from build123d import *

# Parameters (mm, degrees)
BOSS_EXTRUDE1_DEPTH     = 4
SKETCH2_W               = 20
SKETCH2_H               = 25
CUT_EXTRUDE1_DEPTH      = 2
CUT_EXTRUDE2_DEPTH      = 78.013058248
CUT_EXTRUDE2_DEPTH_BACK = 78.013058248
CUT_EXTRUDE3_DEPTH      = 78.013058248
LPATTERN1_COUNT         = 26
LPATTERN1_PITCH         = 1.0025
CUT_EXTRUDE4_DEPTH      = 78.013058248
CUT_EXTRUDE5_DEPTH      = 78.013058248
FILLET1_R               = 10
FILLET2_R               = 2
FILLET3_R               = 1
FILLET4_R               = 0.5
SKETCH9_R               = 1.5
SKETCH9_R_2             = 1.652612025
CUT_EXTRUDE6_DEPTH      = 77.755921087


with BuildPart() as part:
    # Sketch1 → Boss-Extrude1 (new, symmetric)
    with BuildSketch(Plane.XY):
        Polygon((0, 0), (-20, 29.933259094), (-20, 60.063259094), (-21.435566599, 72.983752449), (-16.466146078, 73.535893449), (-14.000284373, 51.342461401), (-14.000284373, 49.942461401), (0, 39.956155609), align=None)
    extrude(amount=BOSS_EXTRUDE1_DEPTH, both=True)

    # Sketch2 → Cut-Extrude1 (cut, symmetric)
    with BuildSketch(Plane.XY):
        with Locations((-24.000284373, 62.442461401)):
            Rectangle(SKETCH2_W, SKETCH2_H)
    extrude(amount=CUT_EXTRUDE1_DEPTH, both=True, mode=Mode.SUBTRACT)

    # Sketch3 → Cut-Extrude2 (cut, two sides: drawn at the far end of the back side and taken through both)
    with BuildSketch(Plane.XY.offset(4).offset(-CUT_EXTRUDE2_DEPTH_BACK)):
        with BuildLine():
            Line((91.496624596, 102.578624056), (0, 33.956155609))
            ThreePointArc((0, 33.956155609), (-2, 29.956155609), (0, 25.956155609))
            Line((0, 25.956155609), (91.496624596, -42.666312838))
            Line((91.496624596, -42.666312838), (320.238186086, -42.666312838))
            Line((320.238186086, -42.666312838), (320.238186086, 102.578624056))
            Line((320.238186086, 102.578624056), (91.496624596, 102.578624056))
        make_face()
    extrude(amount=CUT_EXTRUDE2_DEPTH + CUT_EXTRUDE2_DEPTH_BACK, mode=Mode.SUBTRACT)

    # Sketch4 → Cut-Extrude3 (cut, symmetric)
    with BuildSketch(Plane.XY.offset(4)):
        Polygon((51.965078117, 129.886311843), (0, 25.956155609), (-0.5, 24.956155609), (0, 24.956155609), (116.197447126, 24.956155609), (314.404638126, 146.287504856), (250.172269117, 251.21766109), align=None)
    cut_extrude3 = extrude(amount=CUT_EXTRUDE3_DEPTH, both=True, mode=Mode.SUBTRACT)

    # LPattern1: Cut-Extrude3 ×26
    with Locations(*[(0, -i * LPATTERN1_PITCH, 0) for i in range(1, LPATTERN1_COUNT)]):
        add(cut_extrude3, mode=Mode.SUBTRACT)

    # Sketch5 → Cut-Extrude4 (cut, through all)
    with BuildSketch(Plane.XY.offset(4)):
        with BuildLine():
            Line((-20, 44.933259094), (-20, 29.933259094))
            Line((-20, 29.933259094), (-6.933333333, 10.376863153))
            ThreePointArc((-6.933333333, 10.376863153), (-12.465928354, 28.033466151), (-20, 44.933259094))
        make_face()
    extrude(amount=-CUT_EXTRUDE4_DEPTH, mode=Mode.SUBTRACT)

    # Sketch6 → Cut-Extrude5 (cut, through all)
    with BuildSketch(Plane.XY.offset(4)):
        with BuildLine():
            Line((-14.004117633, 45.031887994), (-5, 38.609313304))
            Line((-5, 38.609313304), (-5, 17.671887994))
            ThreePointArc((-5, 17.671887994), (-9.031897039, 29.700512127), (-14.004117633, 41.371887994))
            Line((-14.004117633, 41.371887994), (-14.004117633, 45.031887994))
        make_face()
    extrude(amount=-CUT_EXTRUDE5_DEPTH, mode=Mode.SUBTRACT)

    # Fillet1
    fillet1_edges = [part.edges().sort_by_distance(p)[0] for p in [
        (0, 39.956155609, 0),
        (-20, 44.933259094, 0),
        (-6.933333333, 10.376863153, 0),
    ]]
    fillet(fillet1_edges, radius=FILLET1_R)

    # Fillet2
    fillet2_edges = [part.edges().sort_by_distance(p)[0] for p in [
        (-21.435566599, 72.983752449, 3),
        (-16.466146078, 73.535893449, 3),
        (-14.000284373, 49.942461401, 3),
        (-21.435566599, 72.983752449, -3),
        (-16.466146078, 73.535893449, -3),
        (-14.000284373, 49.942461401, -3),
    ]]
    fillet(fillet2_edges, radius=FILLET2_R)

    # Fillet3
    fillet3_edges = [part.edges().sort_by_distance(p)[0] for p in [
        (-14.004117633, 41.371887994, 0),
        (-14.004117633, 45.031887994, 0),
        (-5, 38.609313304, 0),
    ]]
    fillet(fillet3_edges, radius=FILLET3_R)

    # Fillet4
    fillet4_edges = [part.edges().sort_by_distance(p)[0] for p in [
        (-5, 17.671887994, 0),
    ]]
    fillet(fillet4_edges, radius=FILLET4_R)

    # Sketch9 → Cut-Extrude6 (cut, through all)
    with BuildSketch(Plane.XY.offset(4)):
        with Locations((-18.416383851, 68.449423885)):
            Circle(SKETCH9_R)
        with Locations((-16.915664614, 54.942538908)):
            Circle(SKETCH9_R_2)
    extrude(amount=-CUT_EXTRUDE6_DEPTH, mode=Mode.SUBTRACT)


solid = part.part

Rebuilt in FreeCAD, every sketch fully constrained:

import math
import FreeCAD as App
import Part
import Sketcher
Q = App.Units.Quantity


def edges_at(feature, points):
    """Names of the edges that pass closest to the given points."""
    edges = feature.Shape.Edges
    near = lambda p: min(range(len(edges)), key=lambda i: edges[i].distToShape(Part.Vertex(*p))[0])
    return sorted({f"Edge{near(p) + 1}" for p in points})


def add_polygon(sketch, points):
    """Adds a closed chain of lines whose ends are joined by coincident constraints."""
    first, n = sketch.GeometryCount, len(points)
    for a, b in zip(points, points[1:] + points[:1]):
        sketch.addGeometry(Part.LineSegment(App.Vector(*a, 0), App.Vector(*b, 0)), False)
    for i in range(n):
        sketch.addConstraint(Sketcher.Constraint("Coincident", first + i, 2, first + (i + 1) % n, 1))

doc = App.newDocument("Part")
body = doc.addObject("PartDesign::Body", "Body")

sketch1 = body.newObject("Sketcher::SketchObject", "Sketch")
sketch1.AttachmentSupport = (doc.getObject("XY_Plane"), [""])
sketch1.MapMode = "FlatFace"
add_polygon(sketch1, [(-20, 29.9), (0, 0), (0, 40), (-14, 49.9), (-14, 51.3), (-16.5, 73.5), (-21.4, 73), (-20, 60.1)])
sketch1.addConstraint(Sketcher.Constraint("Vertical", 1))
sketch1.addConstraint(Sketcher.Constraint("Vertical", 3))
sketch1.addConstraint(Sketcher.Constraint("Vertical", 7))
sketch1.addConstraint(Sketcher.Constraint("Coincident", 0, 2, -1, 1))
sketch1.addConstraint(Sketcher.Constraint("Perpendicular", 4, 5))
sketch1.addConstraint(Sketcher.Constraint("Perpendicular", 5, 6))
sketch1.addConstraint(Sketcher.Constraint("Distance", 0, Q("36 mm")))
sketch1.addConstraint(Sketcher.Constraint("Distance", 5, Q("5 mm")))
sketch1.addConstraint(Sketcher.Constraint("Distance", 6, Q("13 mm")))
sketch1.addConstraint(Sketcher.Constraint("DistanceY", 3, 1, 3, 2, Q("1.4 mm")))
sketch1.addConstraint(Sketcher.Constraint("DistanceX", 6, 2, -1, 1, Q("20 mm")))
sketch1.addConstraint(Sketcher.Constraint("Angle", 2, Q("144.5 deg")))
sketch1.addConstraint(Sketcher.Constraint("DistanceY", 7, 2, 7, 1, Q("30.13 mm")))
sketch1.addConstraint(Sketcher.Constraint("Angle", 4, Q("96.34 deg")))
sketch1.addConstraint(Sketcher.Constraint("Distance", 4, Q("22.33 mm")))
pad1 = body.newObject("PartDesign::Pad", "Pad")
pad1.Profile = sketch1
pad1.Length = 8
pad1.Midplane = True

sketch2 = body.newObject("Sketcher::SketchObject", "Sketch001")
sketch2.AttachmentSupport = (doc.getObject("XY_Plane"), [""])
sketch2.MapMode = "FlatFace"
add_polygon(sketch2, [(-34, 75), (-34, 50), (-14, 50), (-14, 75)])
sketch2.addConstraint(Sketcher.Constraint("Vertical", 0))
sketch2.addConstraint(Sketcher.Constraint("Horizontal", 1))
sketch2.addConstraint(Sketcher.Constraint("Vertical", 2))
sketch2.addConstraint(Sketcher.Constraint("Horizontal", 3))
sketch2.addConstraint(Sketcher.Constraint("DistanceX", 1, 1, 1, 2, Q("20 mm")))
sketch2.addConstraint(Sketcher.Constraint("DistanceY", 0, 2, 0, 1, Q("25 mm")))
sketch2.addConstraint(Sketcher.Constraint("DistanceY", -1, 1, 0, 2, Q("49.942461 mm")))
sketch2.addConstraint(Sketcher.Constraint("DistanceX", 0, 2, -1, 1, Q("34.000284 mm")))
pocket1 = body.newObject("PartDesign::Pocket", "Pocket")
pocket1.Profile = sketch2
pocket1.Length = 4
pocket1.Midplane = True

sketch3 = body.newObject("Sketcher::SketchObject", "Sketch002")
sketch3.AttachmentSupport = (doc.getObject("XY_Plane"), [""])
sketch3.MapMode = "FlatFace"
sketch3.AttachmentOffset = App.Placement(App.Vector(0, 0, 4), App.Rotation())
sketch3.addGeometry(Part.LineSegment(App.Vector(91, 103, 0), App.Vector(0, 34, 0)), False)
sketch3.addGeometry(Part.ArcOfCircle(Part.Circle(App.Vector(3, 30, 0), App.Vector(0, 0, 1), 5), math.radians(127), math.radians(233)), False)
sketch3.addGeometry(Part.LineSegment(App.Vector(0, 26, 0), App.Vector(91, -43, 0)), False)
sketch3.addGeometry(Part.LineSegment(App.Vector(91, -43, 0), App.Vector(320, -43, 0)), False)
sketch3.addGeometry(Part.LineSegment(App.Vector(320, -43, 0), App.Vector(320, 103, 0)), False)
sketch3.addGeometry(Part.LineSegment(App.Vector(320, 103, 0), App.Vector(91, 103, 0)), False)
sketch3.addConstraint(Sketcher.Constraint("Tangent", 0, 2, 1, 1))
sketch3.addConstraint(Sketcher.Constraint("Tangent", 1, 2, 2, 1))
sketch3.addConstraint(Sketcher.Constraint("Coincident", 2, 2, 3, 1))
sketch3.addConstraint(Sketcher.Constraint("Coincident", 3, 2, 4, 1))
sketch3.addConstraint(Sketcher.Constraint("Coincident", 4, 2, 5, 1))
sketch3.addConstraint(Sketcher.Constraint("Coincident", 5, 2, 0, 1))
sketch3.addConstraint(Sketcher.Constraint("Horizontal", 3))
sketch3.addConstraint(Sketcher.Constraint("Vertical", 4))
sketch3.addConstraint(Sketcher.Constraint("Horizontal", 5))
sketch3.addConstraint(Sketcher.Constraint("PointOnObject", 0, 2, -2))
sketch3.addConstraint(Sketcher.Constraint("PointOnObject", 1, 2, -2))
sketch3.addConstraint(Sketcher.Constraint("Vertical", 2, 2, 5, 2))
sketch3.addConstraint(Sketcher.Constraint("Radius", 1, Q("5 mm")))
sketch3.addConstraint(Sketcher.Constraint("DistanceX", -1, 1, 1, 3, Q("3 mm")))
sketch3.addConstraint(Sketcher.Constraint("DistanceX", 3, 1, 3, 2, Q("228.741561 mm")))
sketch3.addConstraint(Sketcher.Constraint("Distance", 0, Q("114.370781 mm")))
sketch3.addConstraint(Sketcher.Constraint("DistanceY", -1, 1, 1, 3, Q("29.956156 mm")))
pocket2 = body.newObject("PartDesign::Pocket", "Pocket001")
pocket2.Profile = sketch3
pocket2.Type = "ThroughAll"
pocket2.Midplane = True

sketch4 = body.newObject("Sketcher::SketchObject", "Sketch003")
sketch4.AttachmentSupport = (doc.getObject("XY_Plane"), [""])
sketch4.MapMode = "FlatFace"
sketch4.AttachmentOffset = App.Placement(App.Vector(0, 0, 4), App.Rotation())
add_polygon(sketch4, [(52, 130), (0, 25), (116, 25), (314, 146), (250, 251)])
sketch4.addConstraint(Sketcher.Constraint("Horizontal", 1))
sketch4.addConstraint(Sketcher.Constraint("Perpendicular", 2, 3))
sketch4.addConstraint(Sketcher.Constraint("Perpendicular", 3, 4))
sketch4.addConstraint(Sketcher.Constraint("Equal", 2, 4))
sketch4.addConstraint(Sketcher.Constraint("DistanceX", 0, 2, -1, 1, Q("0.5 mm")))
sketch4.addConstraint(Sketcher.Constraint("Distance", 3, Q("123.029 mm")))
sketch4.addConstraint(Sketcher.Constraint("Distance", 0, Q("117.315481 mm")))
sketch4.addConstraint(Sketcher.Constraint("DistanceX", 1, 1, 1, 2, Q("116.697447 mm")))
sketch4.addConstraint(Sketcher.Constraint("DistanceX", -1, 1, 2, 2, Q("314.404638 mm")))
sketch4.addConstraint(Sketcher.Constraint("DistanceY", -1, 1, 3, 2, Q("251.217661 mm")))
pocket3 = body.newObject("PartDesign::Pocket", "Pocket002")
pocket3.Profile = sketch4
pocket3.Length = 156.026116
pocket3.Midplane = True
doc.recompute()

linearpattern = body.newObject("PartDesign::LinearPattern", "LinearPattern")
linearpattern.Originals = [pocket3]
linearpattern.Direction = (doc.getObject("Y_Axis"), [""])
linearpattern.Mode = "offset"
linearpattern.Offset = 1.0025
linearpattern.Occurrences = 26
linearpattern.Reversed = True
body.Tip = linearpattern

sketch5 = body.newObject("Sketcher::SketchObject", "Sketch004")
sketch5.AttachmentSupport = (doc.getObject("XY_Plane"), [""])
sketch5.MapMode = "FlatFace"
sketch5.AttachmentOffset = App.Placement(App.Vector(0, 0, 4), App.Rotation())
sketch5.addGeometry(Part.LineSegment(App.Vector(-20, 45, 0), App.Vector(-20, 30, 0)), False)
sketch5.addGeometry(Part.LineSegment(App.Vector(-20, 30, 0), App.Vector(-7, 10, 0)), False)
sketch5.addGeometry(Part.ArcOfCircle(Part.Circle(App.Vector(-162, -29, 0), App.Vector(0, 0, 1), 160), math.radians(14.08), math.radians(27.34)), False)
sketch5.addConstraint(Sketcher.Constraint("Coincident", 0, 2, 1, 1))
sketch5.addConstraint(Sketcher.Constraint("Coincident", 1, 2, 2, 1))
sketch5.addConstraint(Sketcher.Constraint("Coincident", 2, 2, 0, 1))
sketch5.addConstraint(Sketcher.Constraint("Vertical", 0))
sketch5.addConstraint(Sketcher.Constraint("Radius", 2, Q("160 mm")))
sketch5.addConstraint(Sketcher.Constraint("DistanceY", 0, 2, 0, 1, Q("15 mm")))
sketch5.addConstraint(Sketcher.Constraint("DistanceX", 0, 2, -1, 1, Q("20 mm")))
sketch5.addConstraint(Sketcher.Constraint("Distance", 1, Q("23.52 mm")))
sketch5.addConstraint(Sketcher.Constraint("DistanceX", 2, 3, 1, 2, Q("155.190902 mm")))
sketch5.addConstraint(Sketcher.Constraint("DistanceY", 2, 3, -1, 1, Q("28.556209 mm")))
pocket4 = body.newObject("PartDesign::Pocket", "Pocket003")
pocket4.Profile = sketch5
pocket4.Type = "ThroughAll"

sketch6 = body.newObject("Sketcher::SketchObject", "Sketch005")
sketch6.AttachmentSupport = (doc.getObject("XY_Plane"), [""])
sketch6.MapMode = "FlatFace"
sketch6.AttachmentOffset = App.Placement(App.Vector(0, 0, 4), App.Rotation())
sketch6.addGeometry(Part.LineSegment(App.Vector(-5, 38.6, 0), App.Vector(-14, 45, 0)), False)
sketch6.addGeometry(Part.LineSegment(App.Vector(-14, 45, 0), App.Vector(-14, 41.4, 0)), False)
sketch6.addGeometry(Part.ArcOfCircle(Part.Circle(App.Vector(-158.6, -27.1, 0), App.Vector(0, 0, 1), 160), math.radians(16.26), math.radians(25.35)), False)
sketch6.addGeometry(Part.LineSegment(App.Vector(-5, 17.7, 0), App.Vector(-5, 38.6, 0)), False)
sketch6.addConstraint(Sketcher.Constraint("Coincident", 0, 2, 1, 1))
sketch6.addConstraint(Sketcher.Constraint("Coincident", 1, 2, 2, 2))
sketch6.addConstraint(Sketcher.Constraint("Coincident", 2, 1, 3, 1))
sketch6.addConstraint(Sketcher.Constraint("Coincident", 3, 2, 0, 1))
sketch6.addConstraint(Sketcher.Constraint("Vertical", 1))
sketch6.addConstraint(Sketcher.Constraint("Vertical", 3))
sketch6.addConstraint(Sketcher.Constraint("Radius", 2, Q("160 mm")))
sketch6.addConstraint(Sketcher.Constraint("DistanceX", 2, 1, -1, 1, Q("5 mm")))
sketch6.addConstraint(Sketcher.Constraint("Angle", 0, Q("144.5 deg")))
sketch6.addConstraint(Sketcher.Constraint("DistanceY", 1, 2, 1, 1, Q("3.66 mm")))
sketch6.addConstraint(Sketcher.Constraint("DistanceY", 2, 1, 1, 2, Q("23.7 mm")))
sketch6.addConstraint(Sketcher.Constraint("Distance", 0, Q("11.06 mm")))
sketch6.addConstraint(Sketcher.Constraint("DistanceY", 2, 3, -1, 1, Q("27.123949 mm")))
pocket5 = body.newObject("PartDesign::Pocket", "Pocket004")
pocket5.Profile = sketch6
pocket5.Type = "ThroughAll"
doc.recompute()

fillet = body.newObject("PartDesign::Fillet", "Fillet")
fillet.Base = (pocket5, edges_at(pocket5, [(0, 39.956, 0), (-20, 44.933, 0), (-6.933, 10.377, 0)]))
fillet.Radius = 10
doc.recompute()

fillet2 = body.newObject("PartDesign::Fillet", "Fillet001")
fillet2.Base = (fillet, edges_at(fillet, [
    (-21.436, 72.984, 3),
    (-16.466, 73.536, 3),
    (-14, 49.942, 3),
    (-21.436, 72.984, -3),
    (-16.466, 73.536, -3),
    (-14, 49.942, -3),
]))
fillet2.Radius = 2
doc.recompute()

fillet3 = body.newObject("PartDesign::Fillet", "Fillet002")
fillet3.Base = (fillet2, edges_at(fillet2, [(-14.004, 41.372, 0), (-14.004, 45.032, 0), (-5, 38.609, 0)]))
fillet3.Radius = 1
doc.recompute()

fillet4 = body.newObject("PartDesign::Fillet", "Fillet003")
fillet4.Base = (fillet3, edges_at(fillet3, [(-5, 17.672, 0)]))
fillet4.Radius = 0.5

sketch7 = body.newObject("Sketcher::SketchObject", "Sketch006")
sketch7.AttachmentSupport = (doc.getObject("XY_Plane"), [""])
sketch7.MapMode = "FlatFace"
sketch7.AttachmentOffset = App.Placement(App.Vector(0, 0, 4), App.Rotation())
sketch7.addGeometry(Part.Circle(App.Vector(-18.4, 68.4, 0), App.Vector(0, 0, 1), 1.5), False)
sketch7.addGeometry(Part.Circle(App.Vector(-16.9, 54.9, 0), App.Vector(0, 0, 1), 1.7), False)
sketch7.addConstraint(Sketcher.Constraint("Diameter", 0, Q("3 mm")))
sketch7.addConstraint(Sketcher.Constraint("Diameter", 1, Q("3.305224 mm")))
sketch7.addConstraint(Sketcher.Constraint("DistanceY", -1, 1, 1, 3, Q("54.942539 mm")))
sketch7.addConstraint(Sketcher.Constraint("DistanceX", 0, 3, 1, 3, Q("1.500719 mm")))
sketch7.addConstraint(Sketcher.Constraint("DistanceX", 0, 3, -1, 1, Q("18.416384 mm")))
sketch7.addConstraint(Sketcher.Constraint("DistanceY", -1, 1, 0, 3, Q("68.449424 mm")))
pocket6 = body.newObject("PartDesign::Pocket", "Pocket005")
pocket6.Profile = sketch7
pocket6.Type = "ThroughAll"

doc.recompute()
